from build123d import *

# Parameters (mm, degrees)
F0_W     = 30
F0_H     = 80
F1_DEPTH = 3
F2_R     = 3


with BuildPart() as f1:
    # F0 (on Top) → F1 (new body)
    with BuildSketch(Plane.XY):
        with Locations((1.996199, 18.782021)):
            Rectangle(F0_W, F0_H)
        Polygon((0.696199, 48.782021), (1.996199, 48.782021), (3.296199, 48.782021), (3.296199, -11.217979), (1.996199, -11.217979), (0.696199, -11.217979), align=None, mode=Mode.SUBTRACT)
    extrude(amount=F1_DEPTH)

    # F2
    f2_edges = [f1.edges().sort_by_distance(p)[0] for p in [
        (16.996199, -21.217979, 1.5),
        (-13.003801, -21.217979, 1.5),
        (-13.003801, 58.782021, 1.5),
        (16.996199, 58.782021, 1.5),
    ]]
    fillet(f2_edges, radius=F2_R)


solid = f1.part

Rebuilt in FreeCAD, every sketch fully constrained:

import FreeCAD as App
import Part
import Sketcher


def edges_at(feature, points):
    """Names of the edges that pass closest to the given points."""
    edges = feature.Shape.Edges
    near = lambda p: min(range(len(edges)), key=lambda i: edges[i].distToShape(Part.Vertex(*p))[0])
    return sorted({f"Edge{near(p) + 1}" for p in points})


def add_polygon(sketch, points):
    """Adds a closed chain of lines whose ends are joined by coincident constraints."""
    first, n = sketch.GeometryCount, len(points)
    for a, b in zip(points, points[1:] + points[:1]):
        sketch.addGeometry(Part.LineSegment(App.Vector(*a, 0), App.Vector(*b, 0)), False)
    for i in range(n):
        sketch.addConstraint(Sketcher.Constraint("Coincident", first + i, 2, first + (i + 1) % n, 1))

doc = App.newDocument("Part")
params = doc.addObject("Spreadsheet::Sheet", "Params")
for row, (alias, value) in enumerate([
    ("sketch1_width", "30 mm"),
    ("sketch1_height", "80 mm"),
    ("sketch1_height2", "60 mm"),
    ("sketch1_width2", "2.6 mm"),
    ("pad1_length", "3 mm"),
    ("fillet_radius", "3 mm"),
], start=1):
    params.set(f"A{row}", alias)
    params.set(f"B{row}", "=" + value)
    params.setAlias(f"B{row}", alias)

body = doc.addObject("PartDesign::Body", "Body")

sketch1 = body.newObject("Sketcher::SketchObject", "Sketch")
sketch1.AttachmentSupport = (doc.getObject("XY_Plane"), [""])
sketch1.MapMode = "FlatFace"
add_polygon(sketch1, [(-13.003801, 58.782021), (-13.003801, -21.217979), (16.996199, -21.217979), (16.996199, 58.782021)])
add_polygon(sketch1, [(0.696199, -11.217979), (0.696199, 48.782021), (3.296199, 48.782021), (3.296199, -11.217979)])
sketch1.addConstraint([
    Sketcher.Constraint("Vertical", 0),
    Sketcher.Constraint("Horizontal", 1),
    Sketcher.Constraint("Vertical", 2),
    Sketcher.Constraint("Horizontal", 3),
    Sketcher.Constraint("Vertical", 4),
    Sketcher.Constraint("Horizontal", 5),
    Sketcher.Constraint("Vertical", 6),
    Sketcher.Constraint("Horizontal", 7),
    Sketcher.Constraint("DistanceX", 1, 1, 1, 2, 30.0),
    Sketcher.Constraint("DistanceY", 0, 2, 0, 1, 80.0),
    Sketcher.Constraint("DistanceY", 4, 1, 4, 2, 60.0),
    Sketcher.Constraint("DistanceX", 5, 1, 5, 2, 2.6),
    Sketcher.Constraint("DistanceY", 4, 2, 3, 2, 10.0),
    Sketcher.Constraint("DistanceX", 3, 2, 4, 2, 13.7),
    Sketcher.Constraint("DistanceX", 0, 2, -1, 1, 13.003801),
    Sketcher.Constraint("DistanceY", 0, 2, -1, 1, 21.217979),
])
sketch1.setExpression("Constraints[16]", "Params.sketch1_width")
sketch1.setExpression("Constraints[17]", "Params.sketch1_height")
sketch1.setExpression("Constraints[18]", "Params.sketch1_height2")
sketch1.setExpression("Constraints[19]", "Params.sketch1_width2")
pad1 = body.newObject("PartDesign::Pad", "Pad")
pad1.Profile = sketch1
pad1.setExpression("Length", "Params.pad1_length")
doc.recompute()

fillet = body.newObject("PartDesign::Fillet", "Fillet")
fillet.Base = (pad1, edges_at(pad1, [
    (16.996, -21.218, 1.5),
    (-13.004, -21.218, 1.5),
    (-13.004, 58.782, 1.5),
    (16.996, 58.782, 1.5),
]))
fillet.setExpression("Radius", "Params.fillet_radius")

doc.recompute()
